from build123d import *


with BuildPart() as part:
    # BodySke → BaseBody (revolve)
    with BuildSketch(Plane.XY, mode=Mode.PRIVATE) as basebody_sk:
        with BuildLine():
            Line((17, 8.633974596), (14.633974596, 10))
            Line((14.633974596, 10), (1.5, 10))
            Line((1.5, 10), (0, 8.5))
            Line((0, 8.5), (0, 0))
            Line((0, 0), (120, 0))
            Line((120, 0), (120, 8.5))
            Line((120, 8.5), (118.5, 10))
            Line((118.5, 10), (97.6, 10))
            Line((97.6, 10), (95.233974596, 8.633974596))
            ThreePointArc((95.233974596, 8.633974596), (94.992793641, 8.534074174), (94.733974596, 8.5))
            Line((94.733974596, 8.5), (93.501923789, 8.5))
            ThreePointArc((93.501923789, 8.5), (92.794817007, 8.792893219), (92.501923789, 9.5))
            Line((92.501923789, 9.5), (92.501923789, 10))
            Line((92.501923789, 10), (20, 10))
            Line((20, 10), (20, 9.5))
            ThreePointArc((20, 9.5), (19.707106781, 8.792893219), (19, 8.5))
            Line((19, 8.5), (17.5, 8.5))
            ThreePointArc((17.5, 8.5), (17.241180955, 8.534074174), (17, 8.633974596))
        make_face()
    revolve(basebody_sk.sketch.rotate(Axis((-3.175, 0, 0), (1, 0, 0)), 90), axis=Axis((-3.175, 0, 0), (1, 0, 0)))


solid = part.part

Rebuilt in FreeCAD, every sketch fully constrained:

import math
import FreeCAD as App
import Part
import Sketcher
from FreeCAD import Vector
Q = App.Units.Quantity

doc = App.newDocument("Part")
params = doc.addObject("Spreadsheet::Sheet", "Params")
for row, (alias, value) in enumerate([
    ("sketch1_radius", "1 mm"),
    ("sketch1_width", "120 mm"),
    ("sketch1_width2", "20.9 mm"),
    ("sketch1_width3", "1.5 mm"),
    ("sketch1_height", "8.5 mm"),
    ("revolution_angle", "360 deg"),
], start=1):
    params.set(f"A{row}", alias)
    params.set(f"B{row}", "=" + value)
    params.setAlias(f"B{row}", alias)

body = doc.addObject("PartDesign::Body", "Body")

# Sketch on XY plane
sketch1 = body.newObject("Sketcher::SketchObject", "Sketch")
sketch1.AttachmentSupport = (doc.getObject("XY_Plane"), [""])
sketch1.MapMode = "FlatFace"
sketch1.addGeometry(Part.LineSegment(Vector(17, 8.6, 0), Vector(14.6, 10, 0)), False)
sketch1.addGeometry(Part.LineSegment(Vector(14.6, 10, 0), Vector(1.5, 10, 0)), False)
sketch1.addGeometry(Part.LineSegment(Vector(1.5, 10, 0), Vector(0, 8.5, 0)), False)
sketch1.addGeometry(Part.LineSegment(Vector(0, 8.5, 0), Vector(0, 0, 0)), False)
sketch1.addGeometry(Part.LineSegment(Vector(0, 0, 0), Vector(120, 0, 0)), False)
sketch1.addGeometry(Part.LineSegment(Vector(120, 0, 0), Vector(120, 8.5, 0)), False)
sketch1.addGeometry(Part.LineSegment(Vector(120, 8.5, 0), Vector(118.5, 10, 0)), False)
sketch1.addGeometry(Part.LineSegment(Vector(118.5, 10, 0), Vector(97.6, 10, 0)), False)
sketch1.addGeometry(Part.LineSegment(Vector(97.6, 10, 0), Vector(95.2, 8.6, 0)), False)
sketch1.addGeometry(Part.ArcOfCircle(Part.Circle(Vector(94.7, 9.5, 0), Vector(0, 0, 1), 1), math.radians(-90), math.radians(-60)), False)
sketch1.addGeometry(Part.LineSegment(Vector(94.7, 8.5, 0), Vector(93.5, 8.5, 0)), False)
sketch1.addGeometry(Part.ArcOfCircle(Part.Circle(Vector(93.5, 9.5, 0), Vector(0, 0, 1), 1), math.radians(180), math.radians(270)), False)
sketch1.addGeometry(Part.LineSegment(Vector(92.5, 9.5, 0), Vector(92.5, 10, 0)), False)
sketch1.addGeometry(Part.LineSegment(Vector(92.5, 10, 0), Vector(20, 10, 0)), False)
sketch1.addGeometry(Part.LineSegment(Vector(20, 10, 0), Vector(20, 9.5, 0)), False)
sketch1.addGeometry(Part.ArcOfCircle(Part.Circle(Vector(19, 9.5, 0), Vector(0, 0, 1), 1), math.radians(-90), math.radians(0)), False)
sketch1.addGeometry(Part.LineSegment(Vector(19, 8.5, 0), Vector(17.5, 8.5, 0)), False)
sketch1.addGeometry(Part.ArcOfCircle(Part.Circle(Vector(17.5, 9.5, 0), Vector(0, 0, 1), 1), math.radians(-120), math.radians(-90)), False)
sketch1.addConstraint(Sketcher.Constraint("Coincident", 0, 2, 1, 1))
sketch1.addConstraint(Sketcher.Constraint("Coincident", 1, 2, 2, 1))
sketch1.addConstraint(Sketcher.Constraint("Coincident", 2, 2, 3, 1))
sketch1.addConstraint(Sketcher.Constraint("Coincident", 3, 2, 4, 1))
sketch1.addConstraint(Sketcher.Constraint("Coincident", 4, 2, 5, 1))
sketch1.addConstraint(Sketcher.Constraint("Coincident", 5, 2, 6, 1))
sketch1.addConstraint(Sketcher.Constraint("Coincident", 6, 2, 7, 1))
sketch1.addConstraint(Sketcher.Constraint("Coincident", 7, 2, 8, 1))
sketch1.addConstraint(Sketcher.Constraint("Tangent", 8, 2, 9, 2))
sketch1.addConstraint(Sketcher.Constraint("Tangent", 9, 1, 10, 1))
sketch1.addConstraint(Sketcher.Constraint("Tangent", 10, 2, 11, 2))
sketch1.addConstraint(Sketcher.Constraint("Tangent", 11, 1, 12, 1))
sketch1.addConstraint(Sketcher.Constraint("Coincident", 12, 2, 13, 1))
sketch1.addConstraint(Sketcher.Constraint("Coincident", 13, 2, 14, 1))
sketch1.addConstraint(Sketcher.Constraint("Tangent", 14, 2, 15, 2))
sketch1.addConstraint(Sketcher.Constraint("Tangent", 15, 1, 16, 1))
sketch1.addConstraint(Sketcher.Constraint("Tangent", 16, 2, 17, 2))
sketch1.addConstraint(Sketcher.Constraint("Tangent", 17, 1, 0, 1))
sketch1.addConstraint(Sketcher.Constraint("Horizontal", 1))
sketch1.addConstraint(Sketcher.Constraint("Vertical", 3))
sketch1.addConstraint(Sketcher.Constraint("Horizontal", 4))
sketch1.addConstraint(Sketcher.Constraint("Vertical", 5))
sketch1.addConstraint(Sketcher.Constraint("Horizontal", 7))
sketch1.addConstraint(Sketcher.Constraint("Horizontal", 10))
sketch1.addConstraint(Sketcher.Constraint("Vertical", 12))
sketch1.addConstraint(Sketcher.Constraint("Horizontal", 13))
sketch1.addConstraint(Sketcher.Constraint("Vertical", 14))
sketch1.addConstraint(Sketcher.Constraint("Horizontal", 16))
sketch1.addConstraint(Sketcher.Constraint("Coincident", 3, 2, -1, 1))
sketch1.addConstraint(Sketcher.Constraint("Equal", 9, 11))
sketch1.addConstraint(Sketcher.Constraint("Equal", 11, 15))
sketch1.addConstraint(Sketcher.Constraint("Equal", 15, 17))
sketch1.addConstraint(Sketcher.Constraint("Perpendicular", 2, 6))
sketch1.addConstraint(Sketcher.Constraint("Horizontal", 11, 3, 15, 3))
sketch1.addConstraint(Sketcher.Constraint("Horizontal", 2, 2, 5, 2))
sketch1.addConstraint(Sketcher.Constraint("Horizontal", 1, 2, 6, 2))
sketch1.addConstraint(Sketcher.Constraint("Horizontal", 5, 2, 9, 1))
sketch1.addConstraint(Sketcher.Constraint("Horizontal", 7, 2, 12, 2))
sketch1.addConstraint(Sketcher.Constraint("Horizontal", 8, 2, 17, 1))
sketch1.addConstraint(Sketcher.Constraint("Equal", 2, 6))
sketch1.addConstraint(Sketcher.Constraint("Radius", 9, 1.0))
sketch1.addConstraint(Sketcher.Constraint("DistanceX", 4, 1, 4, 2, 120.0))
sketch1.addConstraint(Sketcher.Constraint("Angle", 0, Q("150 deg")))
sketch1.addConstraint(Sketcher.Constraint("DistanceX", 7, 2, 7, 1, 20.9))
sketch1.addConstraint(Sketcher.Constraint("DistanceX", 16, 2, 16, 1, 1.5))
sketch1.addConstraint(Sketcher.Constraint("DistanceY", 3, 2, 3, 1, 8.5))
sketch1.addConstraint(Sketcher.Constraint("DistanceY", 12, 1, 12, 2, 0.5))
sketch1.addConstraint(Sketcher.Constraint("DistanceX", -1, 1, 15, 3, 19.0))
sketch1.addConstraint(Sketcher.Constraint("DistanceX", 10, 2, 10, 1, 1.232051))
sketch1.setExpression("Constraints[40]", "Params.sketch1_radius")
sketch1.setExpression("Constraints[41]", "Params.sketch1_width")
sketch1.setExpression("Constraints[43]", "Params.sketch1_width2")
sketch1.setExpression("Constraints[44]", "Params.sketch1_width3")
sketch1.setExpression("Constraints[45]", "Params.sketch1_height")
revolution = body.newObject("PartDesign::Revolution", "Revolution")
revolution.Profile = sketch1
revolution.ReferenceAxis = (sketch1, ["H_Axis"])
revolution.setExpression("Angle", "Params.revolution_angle")

doc.recompute()
